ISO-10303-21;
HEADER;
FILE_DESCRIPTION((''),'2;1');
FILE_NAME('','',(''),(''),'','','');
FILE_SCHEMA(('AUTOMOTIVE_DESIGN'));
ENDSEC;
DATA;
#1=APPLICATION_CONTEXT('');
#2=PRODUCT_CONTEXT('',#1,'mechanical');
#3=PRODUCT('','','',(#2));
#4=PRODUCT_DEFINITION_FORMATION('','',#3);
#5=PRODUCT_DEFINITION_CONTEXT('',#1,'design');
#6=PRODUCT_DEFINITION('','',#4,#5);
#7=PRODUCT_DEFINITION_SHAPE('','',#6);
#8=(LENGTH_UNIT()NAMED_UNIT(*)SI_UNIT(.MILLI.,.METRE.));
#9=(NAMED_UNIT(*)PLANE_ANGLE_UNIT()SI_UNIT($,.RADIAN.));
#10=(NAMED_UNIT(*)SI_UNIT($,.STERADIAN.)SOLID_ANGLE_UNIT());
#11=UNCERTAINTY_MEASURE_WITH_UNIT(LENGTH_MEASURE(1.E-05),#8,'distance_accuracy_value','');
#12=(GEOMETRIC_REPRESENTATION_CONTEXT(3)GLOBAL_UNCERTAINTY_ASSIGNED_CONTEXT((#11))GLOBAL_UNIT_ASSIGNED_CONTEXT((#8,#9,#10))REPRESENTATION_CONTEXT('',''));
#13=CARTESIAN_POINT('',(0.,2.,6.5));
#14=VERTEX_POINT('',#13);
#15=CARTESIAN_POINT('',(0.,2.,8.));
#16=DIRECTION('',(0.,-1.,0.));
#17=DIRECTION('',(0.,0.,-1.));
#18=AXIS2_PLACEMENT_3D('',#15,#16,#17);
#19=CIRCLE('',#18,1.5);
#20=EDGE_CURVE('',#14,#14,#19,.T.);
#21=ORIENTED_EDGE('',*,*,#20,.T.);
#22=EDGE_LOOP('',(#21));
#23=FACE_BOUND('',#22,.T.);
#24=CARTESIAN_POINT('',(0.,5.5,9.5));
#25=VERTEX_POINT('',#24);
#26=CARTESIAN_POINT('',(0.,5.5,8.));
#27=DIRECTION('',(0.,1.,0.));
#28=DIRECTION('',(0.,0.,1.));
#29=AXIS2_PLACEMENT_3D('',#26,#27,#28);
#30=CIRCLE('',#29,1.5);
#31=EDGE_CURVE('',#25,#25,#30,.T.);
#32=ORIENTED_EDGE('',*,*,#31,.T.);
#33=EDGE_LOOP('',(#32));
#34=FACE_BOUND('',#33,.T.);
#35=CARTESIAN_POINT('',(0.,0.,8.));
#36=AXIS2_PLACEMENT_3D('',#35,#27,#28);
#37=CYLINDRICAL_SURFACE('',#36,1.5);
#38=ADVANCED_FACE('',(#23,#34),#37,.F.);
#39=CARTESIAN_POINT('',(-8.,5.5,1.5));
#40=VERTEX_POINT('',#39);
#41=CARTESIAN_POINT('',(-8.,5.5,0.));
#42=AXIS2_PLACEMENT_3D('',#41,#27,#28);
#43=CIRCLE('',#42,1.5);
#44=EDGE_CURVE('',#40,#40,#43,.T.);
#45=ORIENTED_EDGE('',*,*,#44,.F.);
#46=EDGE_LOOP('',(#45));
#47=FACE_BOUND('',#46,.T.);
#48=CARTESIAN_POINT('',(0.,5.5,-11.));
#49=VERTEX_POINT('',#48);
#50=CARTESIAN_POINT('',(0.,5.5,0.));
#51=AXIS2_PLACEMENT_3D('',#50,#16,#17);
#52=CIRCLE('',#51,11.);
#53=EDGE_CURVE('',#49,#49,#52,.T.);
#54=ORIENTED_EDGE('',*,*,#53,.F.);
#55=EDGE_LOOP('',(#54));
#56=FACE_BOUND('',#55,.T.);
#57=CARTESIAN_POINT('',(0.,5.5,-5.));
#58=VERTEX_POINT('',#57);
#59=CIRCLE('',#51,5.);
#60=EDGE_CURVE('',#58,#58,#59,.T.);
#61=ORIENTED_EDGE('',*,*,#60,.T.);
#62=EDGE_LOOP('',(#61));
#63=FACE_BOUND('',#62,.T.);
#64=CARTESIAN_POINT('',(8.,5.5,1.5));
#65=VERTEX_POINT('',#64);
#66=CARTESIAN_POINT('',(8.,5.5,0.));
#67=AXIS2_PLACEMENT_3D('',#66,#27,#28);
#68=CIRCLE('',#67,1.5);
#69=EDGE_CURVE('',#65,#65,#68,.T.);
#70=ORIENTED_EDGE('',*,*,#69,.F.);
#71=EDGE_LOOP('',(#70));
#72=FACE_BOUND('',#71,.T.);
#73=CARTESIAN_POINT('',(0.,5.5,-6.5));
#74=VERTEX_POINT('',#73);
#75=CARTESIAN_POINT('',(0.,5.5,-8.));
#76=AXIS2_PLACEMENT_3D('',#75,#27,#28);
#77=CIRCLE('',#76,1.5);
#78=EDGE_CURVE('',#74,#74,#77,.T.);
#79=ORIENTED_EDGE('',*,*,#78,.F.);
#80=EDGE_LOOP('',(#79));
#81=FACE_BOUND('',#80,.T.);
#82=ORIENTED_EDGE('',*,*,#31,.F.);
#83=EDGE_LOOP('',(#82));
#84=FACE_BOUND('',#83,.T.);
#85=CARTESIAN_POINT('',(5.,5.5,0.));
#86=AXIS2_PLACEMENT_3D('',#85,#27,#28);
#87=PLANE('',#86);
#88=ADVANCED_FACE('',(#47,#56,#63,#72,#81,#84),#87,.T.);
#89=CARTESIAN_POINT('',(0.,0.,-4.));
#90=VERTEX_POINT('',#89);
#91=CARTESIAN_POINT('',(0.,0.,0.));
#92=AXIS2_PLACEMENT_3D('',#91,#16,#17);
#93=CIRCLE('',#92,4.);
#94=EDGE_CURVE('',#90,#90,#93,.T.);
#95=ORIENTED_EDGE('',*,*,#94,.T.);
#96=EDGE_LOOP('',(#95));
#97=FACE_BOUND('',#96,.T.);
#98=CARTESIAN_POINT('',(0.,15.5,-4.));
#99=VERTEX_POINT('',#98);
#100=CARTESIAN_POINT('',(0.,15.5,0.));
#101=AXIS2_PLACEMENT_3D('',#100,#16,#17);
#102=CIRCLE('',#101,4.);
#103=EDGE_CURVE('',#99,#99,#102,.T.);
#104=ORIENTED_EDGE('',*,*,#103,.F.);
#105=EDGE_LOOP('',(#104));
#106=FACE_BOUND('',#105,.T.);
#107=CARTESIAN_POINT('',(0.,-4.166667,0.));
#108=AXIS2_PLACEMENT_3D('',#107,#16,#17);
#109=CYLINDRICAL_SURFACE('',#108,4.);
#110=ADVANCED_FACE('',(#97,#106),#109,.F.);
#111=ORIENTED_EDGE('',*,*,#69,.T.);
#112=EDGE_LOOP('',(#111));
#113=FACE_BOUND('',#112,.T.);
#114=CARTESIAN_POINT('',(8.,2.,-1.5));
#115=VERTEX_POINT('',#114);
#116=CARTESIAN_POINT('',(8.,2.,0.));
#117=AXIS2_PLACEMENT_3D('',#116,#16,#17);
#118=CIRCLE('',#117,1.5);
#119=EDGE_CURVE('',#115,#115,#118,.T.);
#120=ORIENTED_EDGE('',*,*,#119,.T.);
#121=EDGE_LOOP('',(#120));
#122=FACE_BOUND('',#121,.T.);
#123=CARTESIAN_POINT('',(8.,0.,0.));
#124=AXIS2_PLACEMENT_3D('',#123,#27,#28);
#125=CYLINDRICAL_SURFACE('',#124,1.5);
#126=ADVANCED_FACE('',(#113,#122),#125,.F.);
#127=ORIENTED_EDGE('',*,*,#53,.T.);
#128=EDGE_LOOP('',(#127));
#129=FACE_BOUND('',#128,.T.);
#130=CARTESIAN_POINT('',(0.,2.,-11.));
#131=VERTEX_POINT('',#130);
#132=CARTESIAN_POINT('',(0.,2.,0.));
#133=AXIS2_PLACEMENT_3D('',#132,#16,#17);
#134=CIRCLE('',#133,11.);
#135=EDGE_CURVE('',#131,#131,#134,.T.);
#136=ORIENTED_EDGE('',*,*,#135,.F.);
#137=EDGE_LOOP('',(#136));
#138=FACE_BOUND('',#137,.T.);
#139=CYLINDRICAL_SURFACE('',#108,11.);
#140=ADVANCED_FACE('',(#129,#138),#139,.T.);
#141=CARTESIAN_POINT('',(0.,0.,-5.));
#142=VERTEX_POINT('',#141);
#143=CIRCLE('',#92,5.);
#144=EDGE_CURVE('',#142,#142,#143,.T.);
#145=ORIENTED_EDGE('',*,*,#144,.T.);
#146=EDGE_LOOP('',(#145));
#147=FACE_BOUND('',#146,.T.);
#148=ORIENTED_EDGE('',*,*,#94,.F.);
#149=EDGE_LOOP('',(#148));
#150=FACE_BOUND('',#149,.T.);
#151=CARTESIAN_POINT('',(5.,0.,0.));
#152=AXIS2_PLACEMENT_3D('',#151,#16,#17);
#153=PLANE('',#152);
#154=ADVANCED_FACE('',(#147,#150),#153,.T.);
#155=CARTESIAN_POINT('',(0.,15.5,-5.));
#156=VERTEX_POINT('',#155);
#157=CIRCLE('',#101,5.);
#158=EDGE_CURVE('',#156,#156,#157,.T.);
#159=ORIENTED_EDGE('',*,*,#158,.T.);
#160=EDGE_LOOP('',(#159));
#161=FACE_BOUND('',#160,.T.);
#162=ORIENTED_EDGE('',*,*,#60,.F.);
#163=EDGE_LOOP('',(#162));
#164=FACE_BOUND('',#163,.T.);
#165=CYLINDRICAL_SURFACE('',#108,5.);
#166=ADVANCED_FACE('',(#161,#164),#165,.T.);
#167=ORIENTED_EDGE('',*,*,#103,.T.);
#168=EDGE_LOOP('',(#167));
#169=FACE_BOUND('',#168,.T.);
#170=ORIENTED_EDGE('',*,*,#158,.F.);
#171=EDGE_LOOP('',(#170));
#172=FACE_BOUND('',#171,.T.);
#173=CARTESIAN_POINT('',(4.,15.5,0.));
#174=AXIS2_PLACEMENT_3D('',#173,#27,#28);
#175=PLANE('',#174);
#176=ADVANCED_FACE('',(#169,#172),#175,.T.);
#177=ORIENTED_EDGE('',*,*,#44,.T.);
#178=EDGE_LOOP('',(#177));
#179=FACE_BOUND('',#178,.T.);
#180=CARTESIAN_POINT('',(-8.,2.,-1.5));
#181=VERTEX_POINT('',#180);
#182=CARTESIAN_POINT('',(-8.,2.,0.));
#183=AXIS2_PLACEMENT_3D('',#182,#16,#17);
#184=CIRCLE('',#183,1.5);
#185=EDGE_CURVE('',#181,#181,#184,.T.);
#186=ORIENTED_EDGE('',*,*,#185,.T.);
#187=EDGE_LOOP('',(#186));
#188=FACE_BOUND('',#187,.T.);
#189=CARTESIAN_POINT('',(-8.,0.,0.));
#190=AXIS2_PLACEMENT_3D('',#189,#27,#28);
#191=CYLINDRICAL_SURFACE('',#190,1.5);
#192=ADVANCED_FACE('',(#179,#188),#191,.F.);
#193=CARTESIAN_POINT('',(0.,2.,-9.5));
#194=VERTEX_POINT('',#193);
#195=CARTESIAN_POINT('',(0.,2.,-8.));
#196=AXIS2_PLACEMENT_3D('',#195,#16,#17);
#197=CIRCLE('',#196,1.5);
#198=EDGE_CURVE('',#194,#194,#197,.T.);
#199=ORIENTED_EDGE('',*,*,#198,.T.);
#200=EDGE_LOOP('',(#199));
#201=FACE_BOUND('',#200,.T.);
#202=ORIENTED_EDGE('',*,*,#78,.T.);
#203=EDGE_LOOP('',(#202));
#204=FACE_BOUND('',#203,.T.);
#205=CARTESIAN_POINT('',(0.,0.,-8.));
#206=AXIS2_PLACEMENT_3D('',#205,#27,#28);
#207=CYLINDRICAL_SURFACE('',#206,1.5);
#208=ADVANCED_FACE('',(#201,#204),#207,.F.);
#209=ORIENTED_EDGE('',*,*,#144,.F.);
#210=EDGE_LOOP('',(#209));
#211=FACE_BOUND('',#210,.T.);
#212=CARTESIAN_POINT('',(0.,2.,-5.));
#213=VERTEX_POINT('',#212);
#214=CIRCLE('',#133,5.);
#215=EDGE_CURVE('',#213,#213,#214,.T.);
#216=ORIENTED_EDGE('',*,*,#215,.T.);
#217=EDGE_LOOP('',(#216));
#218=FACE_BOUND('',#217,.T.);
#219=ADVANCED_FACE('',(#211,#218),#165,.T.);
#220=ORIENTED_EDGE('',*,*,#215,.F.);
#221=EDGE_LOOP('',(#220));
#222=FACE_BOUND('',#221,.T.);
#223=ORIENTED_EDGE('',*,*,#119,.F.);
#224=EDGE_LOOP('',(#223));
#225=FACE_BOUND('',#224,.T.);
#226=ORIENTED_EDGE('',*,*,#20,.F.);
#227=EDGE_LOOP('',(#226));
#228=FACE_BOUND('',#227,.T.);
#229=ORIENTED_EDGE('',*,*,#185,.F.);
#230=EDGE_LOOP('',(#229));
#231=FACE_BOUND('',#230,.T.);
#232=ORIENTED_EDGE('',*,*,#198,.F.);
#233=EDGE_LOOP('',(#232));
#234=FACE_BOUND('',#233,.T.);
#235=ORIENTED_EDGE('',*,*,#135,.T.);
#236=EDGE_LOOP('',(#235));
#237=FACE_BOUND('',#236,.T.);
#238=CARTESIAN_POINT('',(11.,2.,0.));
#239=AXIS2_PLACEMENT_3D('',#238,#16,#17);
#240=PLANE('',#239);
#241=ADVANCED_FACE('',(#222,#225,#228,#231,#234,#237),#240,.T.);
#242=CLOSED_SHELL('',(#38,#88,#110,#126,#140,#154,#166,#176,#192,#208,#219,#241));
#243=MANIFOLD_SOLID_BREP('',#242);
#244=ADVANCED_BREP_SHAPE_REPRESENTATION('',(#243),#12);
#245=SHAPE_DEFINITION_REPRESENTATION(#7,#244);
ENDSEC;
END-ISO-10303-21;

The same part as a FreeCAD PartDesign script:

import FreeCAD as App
import Part
import Sketcher
from FreeCAD import Vector
Q = App.Units.Quantity


def add_polygon(sketch, points):
    """Adds a closed chain of lines whose ends are joined by coincident constraints."""
    first, n = sketch.GeometryCount, len(points)
    for a, b in zip(points, points[1:] + points[:1]):
        sketch.addGeometry(Part.LineSegment(App.Vector(*a, 0), App.Vector(*b, 0)), False)
    for i in range(n):
        sketch.addConstraint(Sketcher.Constraint("Coincident", first + i, 2, first + (i + 1) % n, 1))

doc = App.newDocument("Part")
body = doc.addObject("PartDesign::Body", "Body")

# Sketch on XY plane
sketch1 = body.newObject("Sketcher::SketchObject", "Sketch")
sketch1.AttachmentSupport = (doc.getObject("XY_Plane"), [""])
sketch1.MapMode = "FlatFace"
add_polygon(sketch1, [(4, 15.5), (4, 0), (5, 0), (5, 2), (11, 2), (11, 5.5), (5, 5.5), (5, 15.5)])  # lines 0-7
sketch1.addConstraint([
    Sketcher.Constraint("Vertical", 0),
    Sketcher.Constraint("Horizontal", 1),
    Sketcher.Constraint("Vertical", 2),
    Sketcher.Constraint("Horizontal", 3),
    Sketcher.Constraint("Vertical", 4),
    Sketcher.Constraint("Horizontal", 5),
    Sketcher.Constraint("Vertical", 6),
    Sketcher.Constraint("Horizontal", 7),
    Sketcher.Constraint("PointOnObject", 0, 2, -1),
    Sketcher.Constraint("Vertical", 2, 2, 5, 2),
    Sketcher.Constraint("DistanceX", 1, 1, 1, 2, Q("1 mm")),
    Sketcher.Constraint("DistanceX", 3, 1, 3, 2, Q("6 mm")),
    Sketcher.Constraint("DistanceY", 2, 1, 2, 2, Q("2 mm")),
    Sketcher.Constraint("DistanceY", 6, 1, 6, 2, Q("10 mm")),
    Sketcher.Constraint("DistanceY", 0, 2, 0, 1, Q("15.5 mm")),
    Sketcher.Constraint("DistanceX", -1, 1, 0, 2, Q("4 mm")),
])
revolution = body.newObject("PartDesign::Revolution", "Revolution")
revolution.Profile = sketch1
revolution.ReferenceAxis = (sketch1, ["V_Axis"])
revolution.Angle = 360

# Sketch on XZ plane
sketch2 = body.newObject("Sketcher::SketchObject", "Sketch001")
sketch2.AttachmentSupport = (doc.getObject("XZ_Plane"), [""])
sketch2.MapMode = "FlatFace"
sketch2.AttachmentOffset = App.Placement(Vector(0, 0, -5.5), App.Rotation())
sketch2.addGeometry([
    Part.Circle(Vector(0, -8, 0), Vector(0, 0, 1), 1.5),
    Part.Circle(Vector(8, 0, 0), Vector(0, 0, 1), 1.5),
    Part.Circle(Vector(0, 8, 0), Vector(0, 0, 1), 1.5),
    Part.Circle(Vector(-8, 0, 0), Vector(0, 0, 1), 1.5),
], False)
sketch2.addConstraint([
    Sketcher.Constraint("Equal", 0, 1),
    Sketcher.Constraint("Equal", 1, 2),
    Sketcher.Constraint("Equal", 2, 3),
    Sketcher.Constraint("Symmetric", 0, 3, 2, 3, -1, 1),
    Sketcher.Constraint("Symmetric", 1, 3, 3, 3, -1, 1),
    Sketcher.Constraint("PointOnObject", 0, 3, -2),
    Sketcher.Constraint("PointOnObject", 1, 3, -1),
    Sketcher.Constraint("Diameter", 0, Q("3 mm")),
    Sketcher.Constraint("DistanceY", 0, 3, -1, 1, Q("8 mm")),
    Sketcher.Constraint("DistanceX", -1, 1, 1, 3, Q("8 mm")),
])
pocket1 = body.newObject("PartDesign::Pocket", "Pocket")
pocket1.Profile = sketch2
pocket1.Type = "ThroughAll"
pocket1.Reversed = True

doc.recompute()
